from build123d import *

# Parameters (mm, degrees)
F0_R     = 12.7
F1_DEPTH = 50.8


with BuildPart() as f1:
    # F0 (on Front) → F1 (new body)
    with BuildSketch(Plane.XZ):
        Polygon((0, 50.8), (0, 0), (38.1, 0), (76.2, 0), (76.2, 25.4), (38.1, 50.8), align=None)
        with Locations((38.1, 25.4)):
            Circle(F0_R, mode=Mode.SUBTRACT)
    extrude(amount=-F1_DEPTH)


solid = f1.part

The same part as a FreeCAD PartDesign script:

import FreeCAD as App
import Part
import Sketcher

V = App.Vector
Q = App.Units.Quantity


def add_polygon(sketch, points):
    """Adds a closed chain of lines whose ends are joined by coincident constraints."""
    first, n = sketch.GeometryCount, len(points)
    for a, b in zip(points, points[1:] + points[:1]):
        sketch.addGeometry(Part.LineSegment(App.Vector(*a, 0), App.Vector(*b, 0)), False)
    for i in range(n):
        sketch.addConstraint(Sketcher.Constraint("Coincident", first + i, 2, first + (i + 1) % n, 1))

doc = App.newDocument("Part")
body = doc.addObject("PartDesign::Body", "Body")

sketch1 = body.newObject("Sketcher::SketchObject", "Sketch")
sketch1.AttachmentSupport = (doc.getObject("XZ_Plane"), [""])
sketch1.MapMode = "FlatFace"
add_polygon(sketch1, [(0, 51), (0, 0), (76, 0), (76, 25), (38, 51)])
sketch1.addGeometry(Part.Circle(V(38, 25, 0), V(0, 0, 1), 13), False)
sketch1.addConstraint(Sketcher.Constraint("Vertical", 0))
sketch1.addConstraint(Sketcher.Constraint("Horizontal", 1))
sketch1.addConstraint(Sketcher.Constraint("Vertical", 2))
sketch1.addConstraint(Sketcher.Constraint("Horizontal", 4))
sketch1.addConstraint(Sketcher.Constraint("Coincident", 0, 2, -1, 1))
sketch1.addConstraint(Sketcher.Constraint("Horizontal", 5, 3, 2, 2))
sketch1.addConstraint(Sketcher.Constraint("Vertical", 5, 3, 3, 2))
sketch1.addConstraint(Sketcher.Constraint("Diameter", 5, Q("1 in")))
sketch1.addConstraint(Sketcher.Constraint("DistanceX", 1, 1, 1, 2, Q("3 in")))
sketch1.addConstraint(Sketcher.Constraint("DistanceY", 0, 2, 0, 1, Q("2 in")))
sketch1.addConstraint(Sketcher.Constraint("DistanceY", 2, 1, 2, 2, Q("1 in")))
sketch1.addConstraint(Sketcher.Constraint("DistanceX", 4, 2, 4, 1, Q("1.5 in")))
pad1 = body.newObject("PartDesign::Pad", "Pad")
pad1.Profile = sketch1
pad1.Length = Q("2 in")
pad1.Reversed = True

doc.recompute()
